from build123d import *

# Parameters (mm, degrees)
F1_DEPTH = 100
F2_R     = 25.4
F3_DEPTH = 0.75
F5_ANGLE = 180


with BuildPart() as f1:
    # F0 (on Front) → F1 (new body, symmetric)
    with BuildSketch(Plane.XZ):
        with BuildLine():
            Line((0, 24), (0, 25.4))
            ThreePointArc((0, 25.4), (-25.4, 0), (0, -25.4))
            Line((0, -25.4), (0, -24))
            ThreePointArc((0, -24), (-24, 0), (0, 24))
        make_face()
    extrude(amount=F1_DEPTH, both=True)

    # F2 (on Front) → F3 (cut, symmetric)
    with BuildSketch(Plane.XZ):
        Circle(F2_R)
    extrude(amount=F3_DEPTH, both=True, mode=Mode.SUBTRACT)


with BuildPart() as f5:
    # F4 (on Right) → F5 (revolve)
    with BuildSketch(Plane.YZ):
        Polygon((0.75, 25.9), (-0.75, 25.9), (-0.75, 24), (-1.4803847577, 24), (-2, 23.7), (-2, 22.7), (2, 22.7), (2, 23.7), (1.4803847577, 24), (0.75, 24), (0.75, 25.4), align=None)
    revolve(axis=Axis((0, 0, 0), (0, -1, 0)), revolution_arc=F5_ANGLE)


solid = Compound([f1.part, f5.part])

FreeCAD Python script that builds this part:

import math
import FreeCAD as App
import Part
import Sketcher

V = App.Vector
Q = App.Units.Quantity

doc = App.newDocument("Part")
body = doc.addObject("PartDesign::Body", "Body")
body.AllowCompound = True

sketch1 = doc.addObject("Sketcher::SketchObject", "Sketch")
body.addObject(sketch1)
sketch1.AttachmentSupport = (doc.XZ_Plane, [""])
sketch1.MapMode = "FlatFace"
sketch1.addGeometry(Part.LineSegment(V(0, 24, 0), V(0, 25.4, 0)), False)
sketch1.addGeometry(Part.ArcOfCircle(Part.Circle(V(0, 0, 0), V(0, 0, 1), 25.4), math.radians(90), math.radians(270)), False)
sketch1.addGeometry(Part.LineSegment(V(0, -25.4, 0), V(0, -24, 0)), False)
sketch1.addGeometry(Part.ArcOfCircle(Part.Circle(V(0, 0, 0), V(0, 0, 1), 24), math.radians(90), math.radians(270)), False)
sketch1.addConstraint(Sketcher.Constraint("Coincident", 0, 2, 1, 1))
sketch1.addConstraint(Sketcher.Constraint("Coincident", 1, 2, 2, 1))
sketch1.addConstraint(Sketcher.Constraint("Coincident", 2, 2, 3, 2))
sketch1.addConstraint(Sketcher.Constraint("Coincident", 3, 1, 0, 1))
sketch1.addConstraint(Sketcher.Constraint("Vertical", 0))
sketch1.addConstraint(Sketcher.Constraint("Vertical", 2))
sketch1.addConstraint(Sketcher.Constraint("Coincident", 1, 3, -1, 1))
sketch1.addConstraint(Sketcher.Constraint("Coincident", 3, 3, -1, 1))
sketch1.addConstraint(Sketcher.Constraint("PointOnObject", 0, 2, -2))
sketch1.addConstraint(Sketcher.Constraint("PointOnObject", 1, 2, -2))
sketch1.addConstraint(Sketcher.Constraint("Radius", 3, 24.0))
sketch1.addConstraint(Sketcher.Constraint("Radius", 1, 25.4))
pad1 = doc.addObject("PartDesign::Pad", "Pad")
body.addObject(pad1)
pad1.Profile = sketch1
pad1.Length = 200
pad1.Midplane = True

sketch2 = doc.addObject("Sketcher::SketchObject", "Sketch001")
body.addObject(sketch2)
sketch2.AttachmentSupport = (doc.XZ_Plane, [""])
sketch2.MapMode = "FlatFace"
sketch2.addGeometry(Part.Circle(V(0, 0, 0), V(0, 0, 1), 25), False)
sketch2.addConstraint(Sketcher.Constraint("Coincident", 0, 3, -1, 1))
sketch2.addConstraint(Sketcher.Constraint("Diameter", 0, 50.8))
pocket1 = doc.addObject("PartDesign::Pocket", "Pocket")
body.addObject(pocket1)
pocket1.Profile = sketch2
pocket1.Length = 1.5
pocket1.Midplane = True
body2 = doc.addObject("PartDesign::Body", "Body001")

sketch3 = doc.addObject("Sketcher::SketchObject", "Sketch002")
body2.addObject(sketch3)
sketch3.AttachmentSupport = (doc.getObject("YZ_Plane001"), [""])
sketch3.MapMode = "FlatFace"
sketch3.addGeometry(Part.LineSegment(V(0.8, 25.9, 0), V(-0.8, 25.9, 0)), False)
sketch3.addGeometry(Part.LineSegment(V(-0.8, 25.9, 0), V(-0.8, 24, 0)), False)
sketch3.addGeometry(Part.LineSegment(V(-0.8, 24, 0), V(-1.5, 24, 0)), False)
sketch3.addGeometry(Part.LineSegment(V(-1.5, 24, 0), V(-2, 23.7, 0)), False)
sketch3.addGeometry(Part.LineSegment(V(-2, 23.7, 0), V(-2, 22.7, 0)), False)
sketch3.addGeometry(Part.LineSegment(V(-2, 22.7, 0), V(2, 22.7, 0)), False)
sketch3.addGeometry(Part.LineSegment(V(2, 22.7, 0), V(2, 23.7, 0)), False)
sketch3.addGeometry(Part.LineSegment(V(2, 23.7, 0), V(1.5, 24, 0)), False)
sketch3.addGeometry(Part.LineSegment(V(1.5, 24, 0), V(0.8, 24, 0)), False)
sketch3.addGeometry(Part.LineSegment(V(0.8, 24, 0), V(0.8, 25.9, 0)), False)
sketch3.addConstraint(Sketcher.Constraint("Coincident", 0, 2, 1, 1))
sketch3.addConstraint(Sketcher.Constraint("Coincident", 1, 2, 2, 1))
sketch3.addConstraint(Sketcher.Constraint("Coincident", 2, 2, 3, 1))
sketch3.addConstraint(Sketcher.Constraint("Coincident", 3, 2, 4, 1))
sketch3.addConstraint(Sketcher.Constraint("Coincident", 4, 2, 5, 1))
sketch3.addConstraint(Sketcher.Constraint("Coincident", 5, 2, 6, 1))
sketch3.addConstraint(Sketcher.Constraint("Coincident", 6, 2, 7, 1))
sketch3.addConstraint(Sketcher.Constraint("Coincident", 7, 2, 8, 1))
sketch3.addConstraint(Sketcher.Constraint("Coincident", 8, 2, 9, 1))
sketch3.addConstraint(Sketcher.Constraint("Coincident", 9, 2, 0, 1))
sketch3.addConstraint(Sketcher.Constraint("Horizontal", 0))
sketch3.addConstraint(Sketcher.Constraint("Vertical", 1))
sketch3.addConstraint(Sketcher.Constraint("Horizontal", 2))
sketch3.addConstraint(Sketcher.Constraint("Vertical", 4))
sketch3.addConstraint(Sketcher.Constraint("Horizontal", 5))
sketch3.addConstraint(Sketcher.Constraint("Vertical", 6))
sketch3.addConstraint(Sketcher.Constraint("Horizontal", 8))
sketch3.addConstraint(Sketcher.Constraint("Vertical", 9))
sketch3.addConstraint(Sketcher.Constraint("Symmetric", 3, 2, 6, 2, -2))
sketch3.addConstraint(Sketcher.Constraint("Symmetric", 2, 2, 7, 2, -2))
sketch3.addConstraint(Sketcher.Constraint("Equal", 2, 8))
sketch3.addConstraint(Sketcher.Constraint("DistanceX", 5, 1, 5, 2, 4.0))
sketch3.addConstraint(Sketcher.Constraint("DistanceY", 4, 2, 4, 1, 1.0))
sketch3.addConstraint(Sketcher.Constraint("Angle", 3, Q("-150 deg")))
sketch3.addConstraint(Sketcher.Constraint("DistanceX", 0, 2, 0, 1, 1.5))
sketch3.addConstraint(Sketcher.Constraint("DistanceY", 1, 2, 1, 1, 1.9))
sketch3.addConstraint(Sketcher.Constraint("DistanceY", -1, 1, 1, 2, 24.0))
sketch3.addConstraint(Sketcher.Constraint("Distance", 3, 0.6))
revolution = doc.addObject("PartDesign::Revolution", "Revolution")
body2.addObject(revolution)
revolution.Profile = sketch3
revolution.ReferenceAxis = (sketch3, ["H_Axis"])
revolution.Angle = 180
revolution.Reversed = True

doc.recompute()
